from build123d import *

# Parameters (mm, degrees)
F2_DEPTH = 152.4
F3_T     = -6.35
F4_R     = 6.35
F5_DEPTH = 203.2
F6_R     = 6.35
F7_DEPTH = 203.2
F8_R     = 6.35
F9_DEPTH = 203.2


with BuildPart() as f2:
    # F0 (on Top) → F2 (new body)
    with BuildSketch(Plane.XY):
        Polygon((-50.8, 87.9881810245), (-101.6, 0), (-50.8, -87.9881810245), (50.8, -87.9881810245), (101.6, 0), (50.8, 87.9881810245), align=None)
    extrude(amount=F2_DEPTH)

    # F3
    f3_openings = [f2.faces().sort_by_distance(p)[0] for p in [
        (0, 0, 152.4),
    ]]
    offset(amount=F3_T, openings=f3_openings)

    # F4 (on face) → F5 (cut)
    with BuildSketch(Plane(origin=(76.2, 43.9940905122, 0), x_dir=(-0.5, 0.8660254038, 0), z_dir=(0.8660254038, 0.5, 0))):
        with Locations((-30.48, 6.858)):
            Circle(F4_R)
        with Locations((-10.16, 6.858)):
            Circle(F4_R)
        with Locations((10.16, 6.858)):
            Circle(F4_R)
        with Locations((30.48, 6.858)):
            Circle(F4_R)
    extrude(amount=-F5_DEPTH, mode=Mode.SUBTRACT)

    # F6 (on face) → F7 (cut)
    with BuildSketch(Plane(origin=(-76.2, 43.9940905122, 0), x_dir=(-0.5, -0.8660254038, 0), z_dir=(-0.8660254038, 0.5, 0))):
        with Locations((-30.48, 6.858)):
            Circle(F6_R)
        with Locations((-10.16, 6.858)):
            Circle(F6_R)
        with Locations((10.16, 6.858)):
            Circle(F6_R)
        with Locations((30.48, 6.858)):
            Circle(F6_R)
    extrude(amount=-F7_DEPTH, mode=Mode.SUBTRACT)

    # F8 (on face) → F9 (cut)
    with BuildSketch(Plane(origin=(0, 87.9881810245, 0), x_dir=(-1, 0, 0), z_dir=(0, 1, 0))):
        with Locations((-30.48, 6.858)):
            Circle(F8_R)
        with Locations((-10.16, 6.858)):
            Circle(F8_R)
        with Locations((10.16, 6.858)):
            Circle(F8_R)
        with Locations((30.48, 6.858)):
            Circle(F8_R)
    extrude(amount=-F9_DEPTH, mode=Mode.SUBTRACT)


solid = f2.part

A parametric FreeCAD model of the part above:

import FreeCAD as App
import Part
import Sketcher
from FreeCAD import Vector
Q = App.Units.Quantity


def faces_at(feature, points):
    """Names of the faces that lie closest to the given points."""
    faces = feature.Shape.Faces
    near = lambda p: min(range(len(faces)), key=lambda i: faces[i].distToShape(Part.Vertex(*p))[0])
    return sorted({f"Face{near(p) + 1}" for p in points})


def add_polygon(sketch, points):
    """Adds a closed chain of lines whose ends are joined by coincident constraints."""
    first, n = sketch.GeometryCount, len(points)
    for a, b in zip(points, points[1:] + points[:1]):
        sketch.addGeometry(Part.LineSegment(App.Vector(*a, 0), App.Vector(*b, 0)), False)
    for i in range(n):
        sketch.addConstraint(Sketcher.Constraint("Coincident", first + i, 2, first + (i + 1) % n, 1))

doc = App.newDocument("Part")
params = doc.addObject("Spreadsheet::Sheet", "Params")
for row, (alias, value) in enumerate([
    ("sketch1_width", "4 in"),
    ("sketch1_length", "4 in"),
    ("pad1_length", "6 in"),
    ("thickness_wall", "0.25 in"),
    ("sketch2_diameter", "0.5 in"),
    ("pocket1_length", "8 in"),
    ("sketch3_diameter", "0.5 in"),
    ("pocket2_length", "8 in"),
    ("sketch4_diameter", "0.5 in"),
    ("pocket3_length", "8 in"),
], start=1):
    params.set(f"A{row}", alias)
    params.set(f"B{row}", "=" + value)
    params.setAlias(f"B{row}", alias)

body = doc.addObject("PartDesign::Body", "Body")

# Sketch on XY plane
sketch1 = body.newObject("Sketcher::SketchObject", "Sketch")
sketch1.AttachmentSupport = (doc.getObject("XY_Plane"), [""])
sketch1.MapMode = "FlatFace"
add_polygon(sketch1, [(-51, 88), (-102, 0), (-51, -88), (51, -88), (102, 0), (51, 88)])  # lines 0-5
sketch1.addConstraint([
    Sketcher.Constraint("Horizontal", 2),
    Sketcher.Constraint("Horizontal", 5),
    Sketcher.Constraint("Symmetric", 0, 2, 3, 2, -1, 1),
    Sketcher.Constraint("Symmetric", 1, 2, 4, 2, -1, 1),
    Sketcher.Constraint("PointOnObject", 0, 2, -1),
    Sketcher.Constraint("Parallel", 0, 3),
    Sketcher.Constraint("Vertical", 2, 2, 4, 2),
    Sketcher.Constraint("DistanceX", 2, 1, 2, 2, Q("4 in")),
    Sketcher.Constraint("Distance", 0, Q("4 in")),
    Sketcher.Constraint("DistanceX", 0, 2, -1, 1, Q("4 in")),
])
sketch1.setExpression("Constraints[13]", "Params.sketch1_width")
sketch1.setExpression("Constraints[14]", "Params.sketch1_length")
pad1 = body.newObject("PartDesign::Pad", "Pad")
pad1.Profile = sketch1
pad1.setExpression("Length", "Params.pad1_length")
doc.recompute()

thickness = body.newObject("PartDesign::Thickness", "Thickness")
thickness.Base = (pad1, faces_at(pad1, [(0, 0, 152.4)]))
thickness.setExpression("Value", "Params.thickness_wall")
thickness.Reversed = True
thickness.Join = "Arc"

# Sketch on an angled plane
sketch2 = body.newObject("Sketcher::SketchObject", "Sketch001")
sketch2.Placement = App.Placement(Vector(76.2, 43.994091, 0), App.Rotation(Vector(-0.5, 0.866025404, 0), Vector(0, 0, 1), Vector(0.866025404, 0.5, 0), "ZXY"))
sketch2.addGeometry([
    Part.Circle(Vector(-30, 7, 0), Vector(0, 0, 1), 6),
    Part.Circle(Vector(-10, 7, 0), Vector(0, 0, 1), 6),
    Part.Circle(Vector(10, 7, 0), Vector(0, 0, 1), 6),
    Part.Circle(Vector(30, 7, 0), Vector(0, 0, 1), 6),
], False)
sketch2.addConstraint([
    Sketcher.Constraint("Equal", 0, 1),
    Sketcher.Constraint("Equal", 1, 2),
    Sketcher.Constraint("Equal", 2, 3),
    Sketcher.Constraint("Symmetric", 1, 3, 2, 3, -2),
    Sketcher.Constraint("Symmetric", 0, 3, 3, 3, -2),
    Sketcher.Constraint("Horizontal", 0, 3, 1, 3),
    Sketcher.Constraint("Diameter", 0, Q("0.5 in")),
    Sketcher.Constraint("DistanceX", 0, 3, -1, 1, Q("1.2 in")),
    Sketcher.Constraint("DistanceX", 1, 3, -1, 1, Q("0.4 in")),
    Sketcher.Constraint("DistanceY", -1, 1, 0, 3, Q("0.27 in")),
])
sketch2.setExpression("Constraints[6]", "Params.sketch2_diameter")
pocket1 = body.newObject("PartDesign::Pocket", "Pocket")
pocket1.Profile = sketch2
pocket1.setExpression("Length", "Params.pocket1_length")

# Sketch on an angled plane
sketch3 = body.newObject("Sketcher::SketchObject", "Sketch002")
sketch3.Placement = App.Placement(Vector(-76.2, 43.994091, 0), App.Rotation(Vector(-0.5, -0.866025404, 0), Vector(0, 0, 1), Vector(-0.866025404, 0.5, 0), "ZXY"))
sketch3.addGeometry([
    Part.Circle(Vector(-30, 7, 0), Vector(0, 0, 1), 6),
    Part.Circle(Vector(-10, 7, 0), Vector(0, 0, 1), 6),
    Part.Circle(Vector(10, 7, 0), Vector(0, 0, 1), 6),
    Part.Circle(Vector(30, 7, 0), Vector(0, 0, 1), 6),
], False)
sketch3.addConstraint([
    Sketcher.Constraint("Equal", 0, 1),
    Sketcher.Constraint("Equal", 1, 2),
    Sketcher.Constraint("Equal", 2, 3),
    Sketcher.Constraint("Symmetric", 1, 3, 2, 3, -2),
    Sketcher.Constraint("Symmetric", 0, 3, 3, 3, -2),
    Sketcher.Constraint("Horizontal", 0, 3, 1, 3),
    Sketcher.Constraint("Diameter", 0, Q("0.5 in")),
    Sketcher.Constraint("DistanceX", 0, 3, -1, 1, Q("1.2 in")),
    Sketcher.Constraint("DistanceX", 1, 3, -1, 1, Q("0.4 in")),
    Sketcher.Constraint("DistanceY", -1, 1, 0, 3, Q("0.27 in")),
])
sketch3.setExpression("Constraints[6]", "Params.sketch3_diameter")
pocket2 = body.newObject("PartDesign::Pocket", "Pocket001")
pocket2.Profile = sketch3
pocket2.setExpression("Length", "Params.pocket2_length")

# Sketch on XZ plane
sketch4 = body.newObject("Sketcher::SketchObject", "Sketch003")
sketch4.AttachmentSupport = (doc.getObject("XZ_Plane"), [""])
sketch4.MapMode = "FlatFace"
sketch4.AttachmentOffset = App.Placement(Vector(0, 0, -87.988181), App.Rotation())
sketch4.addGeometry([
    Part.Circle(Vector(30, 7, 0), Vector(0, 0, 1), 6),
    Part.Circle(Vector(10, 7, 0), Vector(0, 0, 1), 6),
    Part.Circle(Vector(-10, 7, 0), Vector(0, 0, 1), 6),
    Part.Circle(Vector(-30, 7, 0), Vector(0, 0, 1), 6),
], False)
sketch4.addConstraint([
    Sketcher.Constraint("Equal", 0, 1),
    Sketcher.Constraint("Equal", 1, 2),
    Sketcher.Constraint("Equal", 2, 3),
    Sketcher.Constraint("Symmetric", 1, 3, 2, 3, -2),
    Sketcher.Constraint("Symmetric", 0, 3, 3, 3, -2),
    Sketcher.Constraint("Horizontal", 0, 3, 1, 3),
    Sketcher.Constraint("Diameter", 0, Q("0.5 in")),
    Sketcher.Constraint("DistanceX", -1, 1, 0, 3, Q("1.2 in")),
    Sketcher.Constraint("DistanceX", -1, 1, 1, 3, Q("0.4 in")),
    Sketcher.Constraint("DistanceY", -1, 1, 0, 3, Q("0.27 in")),
])
sketch4.setExpression("Constraints[6]", "Params.sketch4_diameter")
pocket3 = body.newObject("PartDesign::Pocket", "Pocket002")
pocket3.Profile = sketch4
pocket3.setExpression("Length", "Params.pocket3_length")
pocket3.Reversed = True

doc.recompute()
